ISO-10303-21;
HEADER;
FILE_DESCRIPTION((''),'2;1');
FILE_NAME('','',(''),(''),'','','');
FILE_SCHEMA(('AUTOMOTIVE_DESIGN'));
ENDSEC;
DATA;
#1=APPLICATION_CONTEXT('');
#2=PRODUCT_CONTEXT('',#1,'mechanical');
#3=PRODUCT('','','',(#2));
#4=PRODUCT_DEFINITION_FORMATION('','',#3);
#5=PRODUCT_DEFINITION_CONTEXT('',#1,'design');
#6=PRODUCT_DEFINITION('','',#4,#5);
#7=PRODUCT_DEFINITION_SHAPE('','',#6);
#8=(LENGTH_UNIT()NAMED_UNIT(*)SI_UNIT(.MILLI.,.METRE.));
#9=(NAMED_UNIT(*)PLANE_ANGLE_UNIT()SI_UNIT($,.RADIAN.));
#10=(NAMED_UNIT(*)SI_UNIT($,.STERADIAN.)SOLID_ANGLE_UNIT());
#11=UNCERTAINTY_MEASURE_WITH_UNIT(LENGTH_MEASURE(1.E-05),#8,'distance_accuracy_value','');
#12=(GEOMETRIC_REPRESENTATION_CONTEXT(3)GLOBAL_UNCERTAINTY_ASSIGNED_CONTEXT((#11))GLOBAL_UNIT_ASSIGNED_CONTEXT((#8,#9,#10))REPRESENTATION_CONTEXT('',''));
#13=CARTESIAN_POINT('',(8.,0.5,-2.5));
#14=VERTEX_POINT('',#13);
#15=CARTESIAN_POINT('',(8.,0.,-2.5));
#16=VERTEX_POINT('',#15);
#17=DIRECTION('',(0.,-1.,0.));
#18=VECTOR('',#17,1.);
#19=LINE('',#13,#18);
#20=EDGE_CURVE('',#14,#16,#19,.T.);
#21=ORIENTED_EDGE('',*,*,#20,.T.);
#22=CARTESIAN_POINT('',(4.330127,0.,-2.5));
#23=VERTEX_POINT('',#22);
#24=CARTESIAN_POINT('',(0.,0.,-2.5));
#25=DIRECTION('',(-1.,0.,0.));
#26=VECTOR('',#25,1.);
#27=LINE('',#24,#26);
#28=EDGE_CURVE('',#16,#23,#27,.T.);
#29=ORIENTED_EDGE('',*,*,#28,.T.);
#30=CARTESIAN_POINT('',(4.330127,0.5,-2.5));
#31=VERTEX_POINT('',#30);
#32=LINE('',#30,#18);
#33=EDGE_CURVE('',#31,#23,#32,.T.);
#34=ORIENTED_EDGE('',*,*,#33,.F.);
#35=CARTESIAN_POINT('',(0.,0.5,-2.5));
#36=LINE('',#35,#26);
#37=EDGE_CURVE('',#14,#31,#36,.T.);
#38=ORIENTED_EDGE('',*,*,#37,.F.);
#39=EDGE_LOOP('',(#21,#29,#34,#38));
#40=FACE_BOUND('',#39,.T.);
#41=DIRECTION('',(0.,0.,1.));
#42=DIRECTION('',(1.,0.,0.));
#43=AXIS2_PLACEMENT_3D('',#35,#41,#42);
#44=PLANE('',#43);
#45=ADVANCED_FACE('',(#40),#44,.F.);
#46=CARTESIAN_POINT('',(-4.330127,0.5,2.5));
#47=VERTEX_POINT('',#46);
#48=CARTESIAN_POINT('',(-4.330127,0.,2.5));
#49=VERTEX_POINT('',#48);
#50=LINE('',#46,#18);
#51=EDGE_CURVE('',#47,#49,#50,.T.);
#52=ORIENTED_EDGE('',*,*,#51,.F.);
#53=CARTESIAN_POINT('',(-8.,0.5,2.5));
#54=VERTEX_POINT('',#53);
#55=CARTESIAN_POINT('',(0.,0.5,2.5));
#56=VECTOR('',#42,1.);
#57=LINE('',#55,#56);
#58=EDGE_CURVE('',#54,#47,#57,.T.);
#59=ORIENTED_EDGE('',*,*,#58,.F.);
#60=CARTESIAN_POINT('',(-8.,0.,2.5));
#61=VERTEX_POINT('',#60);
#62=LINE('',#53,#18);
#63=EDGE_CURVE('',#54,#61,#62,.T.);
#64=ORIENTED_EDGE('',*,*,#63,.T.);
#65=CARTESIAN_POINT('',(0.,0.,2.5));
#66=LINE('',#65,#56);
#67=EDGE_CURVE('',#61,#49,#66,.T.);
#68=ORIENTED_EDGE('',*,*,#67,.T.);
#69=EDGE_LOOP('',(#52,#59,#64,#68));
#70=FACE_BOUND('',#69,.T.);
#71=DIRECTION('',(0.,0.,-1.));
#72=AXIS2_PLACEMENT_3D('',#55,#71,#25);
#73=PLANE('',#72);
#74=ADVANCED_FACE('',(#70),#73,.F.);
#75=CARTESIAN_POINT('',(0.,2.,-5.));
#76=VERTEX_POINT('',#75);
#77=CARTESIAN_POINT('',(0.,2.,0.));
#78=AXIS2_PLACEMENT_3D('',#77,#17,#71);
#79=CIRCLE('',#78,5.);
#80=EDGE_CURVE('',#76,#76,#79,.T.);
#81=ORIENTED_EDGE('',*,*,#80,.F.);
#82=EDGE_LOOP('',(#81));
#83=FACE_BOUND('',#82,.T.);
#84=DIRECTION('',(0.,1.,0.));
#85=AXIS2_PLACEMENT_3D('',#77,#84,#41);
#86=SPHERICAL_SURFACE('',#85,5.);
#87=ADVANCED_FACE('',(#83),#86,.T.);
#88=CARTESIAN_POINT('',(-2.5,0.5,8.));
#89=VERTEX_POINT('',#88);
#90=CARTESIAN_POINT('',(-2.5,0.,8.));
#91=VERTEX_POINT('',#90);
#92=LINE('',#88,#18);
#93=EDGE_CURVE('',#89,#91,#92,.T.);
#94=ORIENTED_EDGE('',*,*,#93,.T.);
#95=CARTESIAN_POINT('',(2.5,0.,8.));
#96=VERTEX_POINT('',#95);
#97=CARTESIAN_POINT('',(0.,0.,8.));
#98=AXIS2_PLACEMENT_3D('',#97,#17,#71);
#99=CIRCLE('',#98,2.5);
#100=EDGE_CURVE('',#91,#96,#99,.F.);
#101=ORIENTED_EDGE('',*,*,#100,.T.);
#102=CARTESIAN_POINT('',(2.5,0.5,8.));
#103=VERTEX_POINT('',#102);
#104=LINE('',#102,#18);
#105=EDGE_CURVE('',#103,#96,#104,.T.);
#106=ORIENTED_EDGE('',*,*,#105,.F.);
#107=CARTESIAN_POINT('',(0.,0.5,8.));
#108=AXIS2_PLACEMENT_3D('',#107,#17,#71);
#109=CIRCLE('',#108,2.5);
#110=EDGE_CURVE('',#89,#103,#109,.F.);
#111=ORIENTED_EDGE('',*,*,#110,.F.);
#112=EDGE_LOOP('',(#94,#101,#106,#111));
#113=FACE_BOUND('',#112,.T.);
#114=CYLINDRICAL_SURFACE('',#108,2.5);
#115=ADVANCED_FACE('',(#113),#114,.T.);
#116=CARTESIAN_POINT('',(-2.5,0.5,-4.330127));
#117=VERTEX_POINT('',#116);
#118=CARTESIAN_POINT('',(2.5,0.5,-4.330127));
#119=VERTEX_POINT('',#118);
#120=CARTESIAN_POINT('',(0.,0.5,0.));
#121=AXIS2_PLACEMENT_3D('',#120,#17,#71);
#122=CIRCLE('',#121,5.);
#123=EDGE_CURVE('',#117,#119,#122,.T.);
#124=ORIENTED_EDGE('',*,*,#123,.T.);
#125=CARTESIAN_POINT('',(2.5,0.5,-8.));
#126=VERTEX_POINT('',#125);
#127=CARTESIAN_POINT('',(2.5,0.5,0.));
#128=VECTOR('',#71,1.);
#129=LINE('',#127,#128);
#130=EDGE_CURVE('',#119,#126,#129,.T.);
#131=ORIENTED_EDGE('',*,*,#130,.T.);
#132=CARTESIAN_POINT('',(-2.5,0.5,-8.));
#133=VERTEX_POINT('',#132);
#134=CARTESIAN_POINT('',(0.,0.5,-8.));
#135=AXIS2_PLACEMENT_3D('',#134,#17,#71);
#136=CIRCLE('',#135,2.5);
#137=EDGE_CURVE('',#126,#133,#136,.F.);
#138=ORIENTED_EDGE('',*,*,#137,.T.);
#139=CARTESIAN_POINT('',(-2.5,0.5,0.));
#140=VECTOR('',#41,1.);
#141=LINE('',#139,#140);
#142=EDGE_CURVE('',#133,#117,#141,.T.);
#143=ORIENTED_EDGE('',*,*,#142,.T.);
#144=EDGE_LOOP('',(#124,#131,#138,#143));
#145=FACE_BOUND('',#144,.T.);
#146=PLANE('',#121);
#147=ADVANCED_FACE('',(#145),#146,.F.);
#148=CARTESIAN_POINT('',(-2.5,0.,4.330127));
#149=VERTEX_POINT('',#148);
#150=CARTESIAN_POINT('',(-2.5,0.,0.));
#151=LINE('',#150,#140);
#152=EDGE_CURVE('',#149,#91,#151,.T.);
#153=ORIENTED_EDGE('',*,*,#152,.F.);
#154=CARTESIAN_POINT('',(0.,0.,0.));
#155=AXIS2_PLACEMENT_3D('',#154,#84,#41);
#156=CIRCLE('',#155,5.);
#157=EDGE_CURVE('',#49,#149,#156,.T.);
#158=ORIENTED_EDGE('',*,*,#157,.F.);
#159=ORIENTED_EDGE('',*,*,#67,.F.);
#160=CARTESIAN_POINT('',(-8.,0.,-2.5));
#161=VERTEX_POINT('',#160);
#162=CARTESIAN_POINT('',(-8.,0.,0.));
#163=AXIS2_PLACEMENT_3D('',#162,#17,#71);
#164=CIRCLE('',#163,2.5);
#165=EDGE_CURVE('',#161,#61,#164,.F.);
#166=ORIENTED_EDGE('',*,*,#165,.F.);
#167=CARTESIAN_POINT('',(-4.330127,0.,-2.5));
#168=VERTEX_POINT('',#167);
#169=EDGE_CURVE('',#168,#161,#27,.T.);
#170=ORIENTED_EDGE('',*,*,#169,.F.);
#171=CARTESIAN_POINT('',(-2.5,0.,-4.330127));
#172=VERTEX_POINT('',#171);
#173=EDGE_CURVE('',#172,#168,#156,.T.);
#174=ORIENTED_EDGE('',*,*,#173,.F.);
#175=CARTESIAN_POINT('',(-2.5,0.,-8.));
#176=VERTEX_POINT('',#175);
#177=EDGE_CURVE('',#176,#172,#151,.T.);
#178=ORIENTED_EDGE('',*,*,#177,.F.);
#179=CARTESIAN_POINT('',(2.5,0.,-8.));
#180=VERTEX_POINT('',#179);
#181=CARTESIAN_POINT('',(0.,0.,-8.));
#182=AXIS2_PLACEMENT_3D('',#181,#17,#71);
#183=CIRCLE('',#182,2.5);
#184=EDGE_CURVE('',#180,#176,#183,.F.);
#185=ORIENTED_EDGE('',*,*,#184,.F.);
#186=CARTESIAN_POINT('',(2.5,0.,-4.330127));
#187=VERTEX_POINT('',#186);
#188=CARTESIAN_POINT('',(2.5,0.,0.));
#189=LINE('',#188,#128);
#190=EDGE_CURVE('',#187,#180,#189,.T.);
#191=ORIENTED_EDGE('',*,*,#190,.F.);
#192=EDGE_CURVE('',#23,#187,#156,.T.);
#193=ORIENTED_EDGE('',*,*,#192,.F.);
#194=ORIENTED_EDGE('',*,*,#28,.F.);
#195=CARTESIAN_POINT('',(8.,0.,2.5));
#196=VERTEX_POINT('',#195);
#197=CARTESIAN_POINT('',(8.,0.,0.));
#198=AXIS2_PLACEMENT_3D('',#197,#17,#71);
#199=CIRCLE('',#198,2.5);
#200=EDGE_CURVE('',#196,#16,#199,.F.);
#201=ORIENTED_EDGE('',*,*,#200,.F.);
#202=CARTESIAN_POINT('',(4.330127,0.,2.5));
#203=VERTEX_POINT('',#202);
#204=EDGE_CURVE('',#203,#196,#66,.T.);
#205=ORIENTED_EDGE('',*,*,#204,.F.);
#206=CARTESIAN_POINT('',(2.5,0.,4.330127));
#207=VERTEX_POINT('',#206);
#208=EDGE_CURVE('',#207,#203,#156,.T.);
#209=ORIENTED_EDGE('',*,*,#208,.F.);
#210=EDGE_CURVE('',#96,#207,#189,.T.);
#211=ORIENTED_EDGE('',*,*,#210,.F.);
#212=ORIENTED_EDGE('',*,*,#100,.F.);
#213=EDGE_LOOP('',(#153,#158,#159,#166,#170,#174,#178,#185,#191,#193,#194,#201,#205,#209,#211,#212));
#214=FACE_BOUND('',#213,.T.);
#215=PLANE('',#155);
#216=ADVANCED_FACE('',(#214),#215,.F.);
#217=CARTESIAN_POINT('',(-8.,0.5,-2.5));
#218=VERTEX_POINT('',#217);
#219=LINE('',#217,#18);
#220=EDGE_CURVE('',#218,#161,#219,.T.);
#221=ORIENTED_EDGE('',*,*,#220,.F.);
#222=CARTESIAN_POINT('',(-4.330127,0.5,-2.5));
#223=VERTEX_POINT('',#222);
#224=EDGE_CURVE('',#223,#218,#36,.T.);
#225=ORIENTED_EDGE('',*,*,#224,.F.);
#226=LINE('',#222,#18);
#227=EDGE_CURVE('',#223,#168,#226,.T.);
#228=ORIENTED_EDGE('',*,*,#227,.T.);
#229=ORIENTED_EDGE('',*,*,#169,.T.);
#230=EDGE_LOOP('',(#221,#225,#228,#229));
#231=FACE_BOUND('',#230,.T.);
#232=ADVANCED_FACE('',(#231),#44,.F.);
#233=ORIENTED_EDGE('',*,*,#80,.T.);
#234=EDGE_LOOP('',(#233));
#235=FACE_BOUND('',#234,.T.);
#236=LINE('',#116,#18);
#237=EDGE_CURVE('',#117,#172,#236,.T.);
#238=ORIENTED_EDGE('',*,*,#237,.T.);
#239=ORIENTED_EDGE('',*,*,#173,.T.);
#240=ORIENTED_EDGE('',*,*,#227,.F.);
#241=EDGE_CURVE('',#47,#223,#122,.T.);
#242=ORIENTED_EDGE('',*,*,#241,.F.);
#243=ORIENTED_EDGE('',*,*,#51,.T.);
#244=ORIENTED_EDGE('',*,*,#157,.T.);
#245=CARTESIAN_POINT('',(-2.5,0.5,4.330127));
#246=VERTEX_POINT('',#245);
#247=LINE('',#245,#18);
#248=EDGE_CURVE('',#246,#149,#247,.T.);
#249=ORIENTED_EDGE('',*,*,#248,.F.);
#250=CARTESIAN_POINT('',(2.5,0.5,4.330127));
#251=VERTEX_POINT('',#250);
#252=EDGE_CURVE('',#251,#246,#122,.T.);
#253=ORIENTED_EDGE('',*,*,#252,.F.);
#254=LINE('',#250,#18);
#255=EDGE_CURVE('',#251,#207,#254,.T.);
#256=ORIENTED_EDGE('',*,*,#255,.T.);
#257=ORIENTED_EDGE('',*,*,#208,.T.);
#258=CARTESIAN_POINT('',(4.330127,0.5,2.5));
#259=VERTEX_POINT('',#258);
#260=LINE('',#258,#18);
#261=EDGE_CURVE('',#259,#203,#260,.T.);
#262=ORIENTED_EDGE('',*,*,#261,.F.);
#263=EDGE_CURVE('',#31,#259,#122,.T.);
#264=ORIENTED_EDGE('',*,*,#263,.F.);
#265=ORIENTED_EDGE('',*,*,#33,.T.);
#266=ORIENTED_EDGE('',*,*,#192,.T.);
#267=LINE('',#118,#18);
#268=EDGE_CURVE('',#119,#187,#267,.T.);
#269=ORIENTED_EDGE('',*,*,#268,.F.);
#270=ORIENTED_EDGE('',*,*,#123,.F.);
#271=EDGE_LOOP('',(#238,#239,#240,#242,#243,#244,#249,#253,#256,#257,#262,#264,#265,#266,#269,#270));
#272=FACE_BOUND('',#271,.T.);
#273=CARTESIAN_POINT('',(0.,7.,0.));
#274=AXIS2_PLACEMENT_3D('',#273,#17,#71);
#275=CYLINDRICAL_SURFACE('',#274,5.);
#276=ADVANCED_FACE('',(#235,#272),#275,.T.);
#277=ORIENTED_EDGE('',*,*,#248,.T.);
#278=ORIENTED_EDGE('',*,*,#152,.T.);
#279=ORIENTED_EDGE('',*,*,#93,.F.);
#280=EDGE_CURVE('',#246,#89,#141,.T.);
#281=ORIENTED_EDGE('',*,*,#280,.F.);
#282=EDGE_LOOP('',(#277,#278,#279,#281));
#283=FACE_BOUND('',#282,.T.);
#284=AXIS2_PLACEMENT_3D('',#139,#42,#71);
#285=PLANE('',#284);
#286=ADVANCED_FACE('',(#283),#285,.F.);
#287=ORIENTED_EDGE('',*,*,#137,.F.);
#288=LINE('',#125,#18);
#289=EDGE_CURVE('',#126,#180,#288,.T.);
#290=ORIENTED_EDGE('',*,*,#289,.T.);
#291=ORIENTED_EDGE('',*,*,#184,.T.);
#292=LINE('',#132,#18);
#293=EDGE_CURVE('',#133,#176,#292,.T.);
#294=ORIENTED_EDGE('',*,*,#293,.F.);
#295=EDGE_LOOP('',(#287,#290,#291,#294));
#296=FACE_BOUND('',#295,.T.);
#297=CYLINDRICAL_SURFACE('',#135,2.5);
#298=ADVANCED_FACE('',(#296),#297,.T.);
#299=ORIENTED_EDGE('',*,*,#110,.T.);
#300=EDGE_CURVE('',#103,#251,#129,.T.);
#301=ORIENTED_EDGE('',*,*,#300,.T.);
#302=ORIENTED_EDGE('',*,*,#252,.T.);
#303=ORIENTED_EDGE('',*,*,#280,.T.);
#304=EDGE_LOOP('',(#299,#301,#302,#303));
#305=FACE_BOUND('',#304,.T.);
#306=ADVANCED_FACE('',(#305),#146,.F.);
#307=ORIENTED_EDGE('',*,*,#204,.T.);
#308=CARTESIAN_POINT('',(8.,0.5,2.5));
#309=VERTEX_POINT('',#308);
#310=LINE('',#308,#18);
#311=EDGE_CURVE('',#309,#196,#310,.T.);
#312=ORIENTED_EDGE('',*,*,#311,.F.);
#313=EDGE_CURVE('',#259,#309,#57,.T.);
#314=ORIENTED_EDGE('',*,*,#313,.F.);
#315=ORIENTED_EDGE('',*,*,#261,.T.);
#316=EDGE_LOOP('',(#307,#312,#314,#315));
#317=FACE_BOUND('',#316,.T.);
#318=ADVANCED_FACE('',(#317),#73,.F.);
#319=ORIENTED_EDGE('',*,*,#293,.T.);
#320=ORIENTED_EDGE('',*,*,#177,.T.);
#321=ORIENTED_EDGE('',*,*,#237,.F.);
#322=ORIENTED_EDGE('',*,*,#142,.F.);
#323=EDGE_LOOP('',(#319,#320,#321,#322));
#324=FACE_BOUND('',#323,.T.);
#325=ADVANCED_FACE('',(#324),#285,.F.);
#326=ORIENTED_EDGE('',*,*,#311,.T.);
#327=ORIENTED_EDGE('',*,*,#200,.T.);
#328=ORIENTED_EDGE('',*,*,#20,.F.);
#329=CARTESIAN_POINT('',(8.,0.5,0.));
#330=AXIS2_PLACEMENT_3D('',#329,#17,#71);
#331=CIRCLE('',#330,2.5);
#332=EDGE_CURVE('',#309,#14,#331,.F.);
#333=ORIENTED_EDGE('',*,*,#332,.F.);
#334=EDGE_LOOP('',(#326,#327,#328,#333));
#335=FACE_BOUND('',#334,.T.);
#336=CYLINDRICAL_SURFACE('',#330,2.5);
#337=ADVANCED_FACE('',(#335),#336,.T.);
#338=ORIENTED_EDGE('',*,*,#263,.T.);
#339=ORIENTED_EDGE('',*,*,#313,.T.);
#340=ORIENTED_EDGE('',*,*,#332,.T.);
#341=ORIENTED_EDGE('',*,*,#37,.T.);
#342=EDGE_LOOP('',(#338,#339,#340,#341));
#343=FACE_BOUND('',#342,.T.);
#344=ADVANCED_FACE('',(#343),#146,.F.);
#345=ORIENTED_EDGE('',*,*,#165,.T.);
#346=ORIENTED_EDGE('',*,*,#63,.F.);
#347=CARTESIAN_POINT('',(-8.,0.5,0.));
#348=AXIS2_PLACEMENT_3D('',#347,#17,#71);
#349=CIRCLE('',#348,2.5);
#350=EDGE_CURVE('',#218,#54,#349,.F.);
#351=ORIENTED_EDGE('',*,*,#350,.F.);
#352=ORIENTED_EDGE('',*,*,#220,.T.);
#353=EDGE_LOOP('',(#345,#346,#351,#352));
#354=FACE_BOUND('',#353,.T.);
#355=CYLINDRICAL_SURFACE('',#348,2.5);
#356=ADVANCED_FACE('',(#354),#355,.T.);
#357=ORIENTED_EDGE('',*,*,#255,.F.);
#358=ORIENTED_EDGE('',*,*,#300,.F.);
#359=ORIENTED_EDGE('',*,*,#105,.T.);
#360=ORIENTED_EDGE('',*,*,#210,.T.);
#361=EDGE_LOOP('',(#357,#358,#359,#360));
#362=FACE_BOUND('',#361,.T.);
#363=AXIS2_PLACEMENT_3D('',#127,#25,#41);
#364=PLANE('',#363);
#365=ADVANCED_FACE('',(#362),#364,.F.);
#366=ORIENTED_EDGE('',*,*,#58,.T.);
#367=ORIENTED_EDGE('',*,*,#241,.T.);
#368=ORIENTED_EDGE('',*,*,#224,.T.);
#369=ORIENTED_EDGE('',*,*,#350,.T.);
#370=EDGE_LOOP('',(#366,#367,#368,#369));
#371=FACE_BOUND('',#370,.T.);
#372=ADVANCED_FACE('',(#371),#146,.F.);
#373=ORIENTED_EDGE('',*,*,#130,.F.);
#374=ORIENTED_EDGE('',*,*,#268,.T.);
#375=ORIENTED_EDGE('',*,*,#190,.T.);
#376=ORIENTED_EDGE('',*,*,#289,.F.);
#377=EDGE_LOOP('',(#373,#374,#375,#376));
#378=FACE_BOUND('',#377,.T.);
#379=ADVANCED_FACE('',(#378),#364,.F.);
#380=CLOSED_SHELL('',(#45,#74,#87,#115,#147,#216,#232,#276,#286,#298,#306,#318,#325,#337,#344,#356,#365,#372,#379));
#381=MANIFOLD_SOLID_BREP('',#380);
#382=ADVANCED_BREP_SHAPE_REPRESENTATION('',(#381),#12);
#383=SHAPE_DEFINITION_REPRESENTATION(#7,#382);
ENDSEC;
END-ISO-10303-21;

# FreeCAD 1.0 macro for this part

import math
import FreeCAD as App
import Part
import Sketcher

V = App.Vector


def edges_at(feature, points):
    """Names of the edges that pass closest to the given points."""
    edges = feature.Shape.Edges
    near = lambda p: min(range(len(edges)), key=lambda i: edges[i].distToShape(Part.Vertex(*p))[0])
    return sorted({f"Edge{near(p) + 1}" for p in points})

doc = App.newDocument("Part")
body = doc.addObject("PartDesign::Body", "Body")

# Sketch on XZ plane
sketch1 = body.newObject("Sketcher::SketchObject", "Sketch")
sketch1.AttachmentSupport = (doc.getObject("XZ_Plane"), [""])
sketch1.MapMode = "FlatFace"
sketch1.addGeometry(Part.Circle(V(0, 0, 0), V(0, 0, 1), 5), False)
sketch1.addConstraint(Sketcher.Constraint("Coincident", 0, 3, -1, 1))
sketch1.addConstraint(Sketcher.Constraint("Diameter", 0, 10.0))
pad1 = body.newObject("PartDesign::Pad", "Pad")
pad1.Profile = sketch1
pad1.Length = 7
pad1.Reversed = True
doc.recompute()

fillet = body.newObject("PartDesign::Fillet", "Fillet")
fillet.Base = (pad1, edges_at(pad1, [(-5, 7, 0)]))
fillet.Radius = 5

# Sketch on XZ plane
sketch2 = body.newObject("Sketcher::SketchObject", "Sketch001")
sketch2.AttachmentSupport = (doc.getObject("XZ_Plane"), [""])
sketch2.MapMode = "FlatFace"
sketch2.addGeometry(Part.LineSegment(V(-2.5, 8, 0), V(-2.5, 4.330127, 0)), False)
sketch2.addGeometry(Part.ArcOfCircle(Part.Circle(V(0, 0, 0), V(0, 0, 1), 5), math.radians(60), math.radians(120)), False)
sketch2.addGeometry(Part.LineSegment(V(2.5, 4.330127, 0), V(2.5, 8, 0)), False)
sketch2.addGeometry(Part.ArcOfCircle(Part.Circle(V(0, 8, 0), V(0, 0, 1), 2.5), math.radians(0), math.radians(180)), False)
sketch2.addGeometry(Part.ArcOfCircle(Part.Circle(V(0, 0, 0), V(0, 0, 1), 5), math.radians(150), math.radians(210)), False)
sketch2.addGeometry(Part.LineSegment(V(-4.330127, 2.5, 0), V(-8, 2.5, 0)), False)
sketch2.addGeometry(Part.ArcOfCircle(Part.Circle(V(-8, 0, 0), V(0, 0, 1), 2.5), math.radians(90), math.radians(270)), False)
sketch2.addGeometry(Part.LineSegment(V(-8, -2.5, 0), V(-4.330127, -2.5, 0)), False)
sketch2.addGeometry(Part.LineSegment(V(8, 2.5, 0), V(4.330127, 2.5, 0)), False)
sketch2.addGeometry(Part.ArcOfCircle(Part.Circle(V(0, 0, 0), V(0, 0, 1), 5), math.radians(-30), math.radians(30)), False)
sketch2.addGeometry(Part.LineSegment(V(4.330127, -2.5, 0), V(8, -2.5, 0)), False)
sketch2.addGeometry(Part.ArcOfCircle(Part.Circle(V(8, 0, 0), V(0, 0, 1), 2.5), math.radians(-90), math.radians(90)), False)
sketch2.addGeometry(Part.ArcOfCircle(Part.Circle(V(0, 0, 0), V(0, 0, 1), 5), math.radians(-120), math.radians(-60)), False)
sketch2.addGeometry(Part.LineSegment(V(-2.5, -4.330127, 0), V(-2.5, -8, 0)), False)
sketch2.addGeometry(Part.ArcOfCircle(Part.Circle(V(0, -8, 0), V(0, 0, 1), 2.5), math.radians(180), math.radians(360)), False)
sketch2.addGeometry(Part.LineSegment(V(2.5, -8, 0), V(2.5, -4.330127, 0)), False)
sketch2.addConstraint(Sketcher.Constraint("Coincident", 0, 2, 1, 2))
sketch2.addConstraint(Sketcher.Constraint("Coincident", 1, 1, 2, 1))
sketch2.addConstraint(Sketcher.Constraint("Tangent", 2, 2, 3, 1))
sketch2.addConstraint(Sketcher.Constraint("Tangent", 3, 2, 0, 1))
sketch2.addConstraint(Sketcher.Constraint("Coincident", 4, 1, 5, 1))
sketch2.addConstraint(Sketcher.Constraint("Tangent", 5, 2, 6, 1))
sketch2.addConstraint(Sketcher.Constraint("Tangent", 6, 2, 7, 1))
sketch2.addConstraint(Sketcher.Constraint("Coincident", 7, 2, 4, 2))
sketch2.addConstraint(Sketcher.Constraint("Coincident", 8, 2, 9, 2))
sketch2.addConstraint(Sketcher.Constraint("Coincident", 9, 1, 10, 1))
sketch2.addConstraint(Sketcher.Constraint("Tangent", 10, 2, 11, 1))
sketch2.addConstraint(Sketcher.Constraint("Tangent", 11, 2, 8, 1))
sketch2.addConstraint(Sketcher.Constraint("Coincident", 12, 1, 13, 1))
sketch2.addConstraint(Sketcher.Constraint("Tangent", 13, 2, 14, 1))
sketch2.addConstraint(Sketcher.Constraint("Tangent", 14, 2, 15, 1))
sketch2.addConstraint(Sketcher.Constraint("Coincident", 15, 2, 12, 2))
sketch2.addConstraint(Sketcher.Constraint("Vertical", 0))
sketch2.addConstraint(Sketcher.Constraint("Vertical", 2))
sketch2.addConstraint(Sketcher.Constraint("Horizontal", 5))
sketch2.addConstraint(Sketcher.Constraint("Horizontal", 7))
sketch2.addConstraint(Sketcher.Constraint("Horizontal", 8))
sketch2.addConstraint(Sketcher.Constraint("Horizontal", 10))
sketch2.addConstraint(Sketcher.Constraint("Vertical", 13))
sketch2.addConstraint(Sketcher.Constraint("Vertical", 15))
sketch2.addConstraint(Sketcher.Constraint("Coincident", 1, 3, -1, 1))
sketch2.addConstraint(Sketcher.Constraint("Coincident", 4, 3, -1, 1))
sketch2.addConstraint(Sketcher.Constraint("Coincident", 9, 3, -1, 1))
sketch2.addConstraint(Sketcher.Constraint("Coincident", 12, 3, -1, 1))
sketch2.addConstraint(Sketcher.Constraint("Equal", 1, 4))
sketch2.addConstraint(Sketcher.Constraint("Equal", 3, 6))
sketch2.addConstraint(Sketcher.Constraint("Equal", 4, 9))
sketch2.addConstraint(Sketcher.Constraint("Equal", 6, 11))
sketch2.addConstraint(Sketcher.Constraint("Equal", 9, 12))
sketch2.addConstraint(Sketcher.Constraint("Equal", 11, 14))
sketch2.addConstraint(Sketcher.Constraint("Symmetric", 6, 3, 11, 3, -1, 1))
sketch2.addConstraint(Sketcher.Constraint("Symmetric", 3, 3, 14, 3, -1, 1))
sketch2.addConstraint(Sketcher.Constraint("PointOnObject", 3, 3, -2))
sketch2.addConstraint(Sketcher.Constraint("PointOnObject", 6, 3, -1))
sketch2.addConstraint(Sketcher.Constraint("Equal", 10, 0))
sketch2.addConstraint(Sketcher.Constraint("Radius", 1, 5.0))
sketch2.addConstraint(Sketcher.Constraint("Radius", 3, 2.5))
sketch2.addConstraint(Sketcher.Constraint("DistanceY", -1, 1, 3, 3, 8.0))
pad2 = body.newObject("PartDesign::Pad", "Pad001")
pad2.Profile = sketch2
pad2.Length = 0.5
pad2.Reversed = True

doc.recompute()
